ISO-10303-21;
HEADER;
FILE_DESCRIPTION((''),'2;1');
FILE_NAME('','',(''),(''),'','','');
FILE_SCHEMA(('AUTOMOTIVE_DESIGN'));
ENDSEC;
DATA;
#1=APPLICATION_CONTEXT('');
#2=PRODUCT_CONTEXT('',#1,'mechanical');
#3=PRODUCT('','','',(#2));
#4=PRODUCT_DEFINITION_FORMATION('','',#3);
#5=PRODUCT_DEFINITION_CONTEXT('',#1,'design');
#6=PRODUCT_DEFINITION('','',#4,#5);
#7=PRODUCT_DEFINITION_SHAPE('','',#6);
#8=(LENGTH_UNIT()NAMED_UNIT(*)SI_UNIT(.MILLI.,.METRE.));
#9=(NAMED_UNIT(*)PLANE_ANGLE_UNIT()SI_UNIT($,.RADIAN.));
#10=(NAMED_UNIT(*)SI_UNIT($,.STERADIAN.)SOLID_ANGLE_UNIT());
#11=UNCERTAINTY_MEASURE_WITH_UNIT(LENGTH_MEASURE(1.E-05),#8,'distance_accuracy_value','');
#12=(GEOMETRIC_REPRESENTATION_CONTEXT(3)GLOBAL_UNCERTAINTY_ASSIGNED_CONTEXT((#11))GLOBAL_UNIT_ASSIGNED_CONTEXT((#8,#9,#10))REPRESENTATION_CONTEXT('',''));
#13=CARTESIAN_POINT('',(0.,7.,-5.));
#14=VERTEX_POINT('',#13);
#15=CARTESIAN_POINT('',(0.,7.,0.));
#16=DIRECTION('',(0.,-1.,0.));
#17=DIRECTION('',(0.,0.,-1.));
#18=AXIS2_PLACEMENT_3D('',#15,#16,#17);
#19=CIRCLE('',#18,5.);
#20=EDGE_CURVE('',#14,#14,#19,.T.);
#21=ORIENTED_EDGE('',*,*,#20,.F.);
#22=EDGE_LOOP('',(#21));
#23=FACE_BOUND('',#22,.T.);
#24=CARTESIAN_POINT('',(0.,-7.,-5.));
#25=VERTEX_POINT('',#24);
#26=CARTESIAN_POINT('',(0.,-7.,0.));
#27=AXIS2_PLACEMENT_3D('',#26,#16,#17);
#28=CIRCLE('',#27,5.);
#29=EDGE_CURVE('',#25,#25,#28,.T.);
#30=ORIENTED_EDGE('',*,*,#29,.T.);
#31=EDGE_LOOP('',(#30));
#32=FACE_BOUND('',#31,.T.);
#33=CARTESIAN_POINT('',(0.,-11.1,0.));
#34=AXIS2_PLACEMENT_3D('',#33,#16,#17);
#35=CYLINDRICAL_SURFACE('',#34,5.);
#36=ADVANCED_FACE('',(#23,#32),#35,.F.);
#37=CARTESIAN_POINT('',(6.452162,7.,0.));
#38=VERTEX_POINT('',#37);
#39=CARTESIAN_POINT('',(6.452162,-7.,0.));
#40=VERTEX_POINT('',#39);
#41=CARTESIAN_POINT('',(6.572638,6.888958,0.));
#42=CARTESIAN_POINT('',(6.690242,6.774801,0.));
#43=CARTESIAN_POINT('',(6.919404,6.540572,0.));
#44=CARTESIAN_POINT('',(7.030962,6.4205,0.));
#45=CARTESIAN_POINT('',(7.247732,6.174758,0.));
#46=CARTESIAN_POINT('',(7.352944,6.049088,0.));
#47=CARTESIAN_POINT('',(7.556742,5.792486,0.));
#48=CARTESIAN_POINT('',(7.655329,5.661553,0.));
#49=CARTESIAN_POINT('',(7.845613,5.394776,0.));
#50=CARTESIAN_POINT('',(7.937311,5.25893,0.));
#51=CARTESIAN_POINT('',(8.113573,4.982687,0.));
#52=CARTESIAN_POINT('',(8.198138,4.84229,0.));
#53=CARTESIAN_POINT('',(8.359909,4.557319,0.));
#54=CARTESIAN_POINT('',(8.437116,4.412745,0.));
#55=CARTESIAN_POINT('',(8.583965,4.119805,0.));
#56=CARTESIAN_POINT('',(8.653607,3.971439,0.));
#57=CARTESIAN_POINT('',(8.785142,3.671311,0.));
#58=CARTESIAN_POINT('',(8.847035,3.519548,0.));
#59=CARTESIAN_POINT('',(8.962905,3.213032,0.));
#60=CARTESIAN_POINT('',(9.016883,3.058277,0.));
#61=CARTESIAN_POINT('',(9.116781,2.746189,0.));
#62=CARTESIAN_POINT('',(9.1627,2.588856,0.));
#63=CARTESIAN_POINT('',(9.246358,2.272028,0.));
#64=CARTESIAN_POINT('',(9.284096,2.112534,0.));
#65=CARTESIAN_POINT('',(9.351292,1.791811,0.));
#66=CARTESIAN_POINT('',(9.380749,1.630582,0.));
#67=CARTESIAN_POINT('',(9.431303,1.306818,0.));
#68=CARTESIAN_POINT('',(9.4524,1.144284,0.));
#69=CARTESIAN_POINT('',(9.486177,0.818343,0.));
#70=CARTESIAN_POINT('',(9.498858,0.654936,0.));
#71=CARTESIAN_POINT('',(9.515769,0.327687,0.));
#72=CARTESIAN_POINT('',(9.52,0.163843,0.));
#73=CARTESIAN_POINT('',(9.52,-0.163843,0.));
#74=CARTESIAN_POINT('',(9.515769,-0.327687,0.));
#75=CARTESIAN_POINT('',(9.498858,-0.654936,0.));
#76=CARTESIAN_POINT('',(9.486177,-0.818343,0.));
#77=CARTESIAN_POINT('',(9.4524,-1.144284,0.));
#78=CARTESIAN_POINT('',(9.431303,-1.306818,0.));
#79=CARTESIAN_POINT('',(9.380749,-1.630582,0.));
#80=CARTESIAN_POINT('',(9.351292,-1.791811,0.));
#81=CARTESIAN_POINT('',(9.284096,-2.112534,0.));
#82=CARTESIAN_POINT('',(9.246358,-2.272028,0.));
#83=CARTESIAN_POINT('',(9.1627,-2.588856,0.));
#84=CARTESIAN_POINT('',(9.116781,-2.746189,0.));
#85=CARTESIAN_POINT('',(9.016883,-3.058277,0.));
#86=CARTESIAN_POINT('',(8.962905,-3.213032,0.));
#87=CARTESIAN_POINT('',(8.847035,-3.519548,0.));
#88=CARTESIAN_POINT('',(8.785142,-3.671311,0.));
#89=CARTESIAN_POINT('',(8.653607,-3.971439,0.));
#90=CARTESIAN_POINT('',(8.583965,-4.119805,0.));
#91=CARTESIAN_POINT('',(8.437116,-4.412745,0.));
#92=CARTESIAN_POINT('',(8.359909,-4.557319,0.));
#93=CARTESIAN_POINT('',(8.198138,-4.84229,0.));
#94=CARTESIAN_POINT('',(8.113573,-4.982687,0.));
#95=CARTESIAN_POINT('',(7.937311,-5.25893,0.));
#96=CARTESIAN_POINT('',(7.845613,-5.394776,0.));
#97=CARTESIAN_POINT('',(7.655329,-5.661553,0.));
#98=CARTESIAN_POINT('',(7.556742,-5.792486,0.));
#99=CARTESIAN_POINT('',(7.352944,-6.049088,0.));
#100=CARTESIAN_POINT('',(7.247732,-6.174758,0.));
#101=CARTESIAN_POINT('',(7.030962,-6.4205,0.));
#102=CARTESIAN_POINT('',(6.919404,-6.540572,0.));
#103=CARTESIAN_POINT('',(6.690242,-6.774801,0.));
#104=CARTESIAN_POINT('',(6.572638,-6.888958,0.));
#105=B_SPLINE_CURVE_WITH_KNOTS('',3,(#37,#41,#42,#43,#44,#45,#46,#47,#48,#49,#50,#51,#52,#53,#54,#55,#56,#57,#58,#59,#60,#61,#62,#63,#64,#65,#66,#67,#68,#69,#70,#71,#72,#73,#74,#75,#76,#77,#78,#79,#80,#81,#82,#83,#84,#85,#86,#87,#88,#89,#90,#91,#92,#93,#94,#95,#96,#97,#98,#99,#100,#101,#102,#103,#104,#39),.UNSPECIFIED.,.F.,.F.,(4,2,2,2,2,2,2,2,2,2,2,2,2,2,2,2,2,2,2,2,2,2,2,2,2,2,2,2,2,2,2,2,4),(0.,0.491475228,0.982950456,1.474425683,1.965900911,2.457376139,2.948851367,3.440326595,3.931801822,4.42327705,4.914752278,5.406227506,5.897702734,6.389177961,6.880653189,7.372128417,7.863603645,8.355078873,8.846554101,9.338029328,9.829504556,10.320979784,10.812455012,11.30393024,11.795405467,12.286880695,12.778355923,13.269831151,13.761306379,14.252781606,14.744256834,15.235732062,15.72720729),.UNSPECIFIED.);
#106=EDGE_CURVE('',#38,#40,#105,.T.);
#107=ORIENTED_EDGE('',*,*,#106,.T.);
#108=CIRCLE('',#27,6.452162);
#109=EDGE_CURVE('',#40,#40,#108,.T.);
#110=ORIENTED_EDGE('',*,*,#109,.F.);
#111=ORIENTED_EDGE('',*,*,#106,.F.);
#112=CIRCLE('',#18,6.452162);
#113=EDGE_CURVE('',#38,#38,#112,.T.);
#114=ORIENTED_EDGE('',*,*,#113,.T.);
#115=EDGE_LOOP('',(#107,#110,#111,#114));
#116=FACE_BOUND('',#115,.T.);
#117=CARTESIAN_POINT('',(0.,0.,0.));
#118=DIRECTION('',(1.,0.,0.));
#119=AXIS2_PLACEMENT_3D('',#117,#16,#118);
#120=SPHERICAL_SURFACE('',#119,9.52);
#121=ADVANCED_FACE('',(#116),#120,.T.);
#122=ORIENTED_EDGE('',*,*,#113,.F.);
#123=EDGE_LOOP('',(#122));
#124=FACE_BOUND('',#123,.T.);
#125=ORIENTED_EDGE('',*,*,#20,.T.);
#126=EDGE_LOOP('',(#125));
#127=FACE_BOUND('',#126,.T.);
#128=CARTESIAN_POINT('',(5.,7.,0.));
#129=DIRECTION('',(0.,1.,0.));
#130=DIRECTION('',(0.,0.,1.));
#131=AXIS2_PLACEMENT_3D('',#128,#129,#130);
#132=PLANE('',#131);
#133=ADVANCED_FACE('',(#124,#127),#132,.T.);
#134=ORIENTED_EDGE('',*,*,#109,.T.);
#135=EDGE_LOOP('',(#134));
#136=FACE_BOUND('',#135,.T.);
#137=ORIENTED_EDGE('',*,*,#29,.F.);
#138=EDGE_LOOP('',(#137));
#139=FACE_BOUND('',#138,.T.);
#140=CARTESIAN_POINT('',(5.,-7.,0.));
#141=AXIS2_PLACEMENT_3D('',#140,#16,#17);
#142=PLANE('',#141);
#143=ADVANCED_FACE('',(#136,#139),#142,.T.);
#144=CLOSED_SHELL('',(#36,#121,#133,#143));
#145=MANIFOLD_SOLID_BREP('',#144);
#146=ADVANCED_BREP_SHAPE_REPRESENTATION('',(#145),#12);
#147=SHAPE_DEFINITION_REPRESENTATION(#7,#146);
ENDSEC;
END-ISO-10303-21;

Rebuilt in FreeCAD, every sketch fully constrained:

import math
import FreeCAD as App
import Part
import Sketcher

doc = App.newDocument("Part")
params = doc.addObject("Spreadsheet::Sheet", "Params")
for row, (alias, value) in enumerate([
    ("sketch1_height", "14 mm"),
    ("sketch1_radius", "9.52 mm"),
    ("revolution_angle", "360 deg"),
], start=1):
    params.set(f"A{row}", alias)
    params.set(f"B{row}", "=" + value)
    params.setAlias(f"B{row}", alias)

body = doc.addObject("PartDesign::Body", "Body")

# Sketch on XY plane
sketch1 = doc.addObject("Sketcher::SketchObject", "Sketch")
body.addObject(sketch1)
sketch1.AttachmentSupport = (doc.XY_Plane, [""])
sketch1.MapMode = "FlatFace"
sketch1.addGeometry([
    Part.LineSegment(App.Vector(5, 7, 0), App.Vector(5, -7, 0)),
    Part.LineSegment(App.Vector(5, -7, 0), App.Vector(6.5, -7, 0)),
    Part.ArcOfCircle(Part.Circle(App.Vector(0, 0, 0), App.Vector(0, 0, 1), 9.5), math.radians(-47), math.radians(47)),
    Part.LineSegment(App.Vector(6.5, 7, 0), App.Vector(5, 7, 0)),
], False)
sketch1.addConstraint([
    Sketcher.Constraint("Coincident", 0, 2, 1, 1),
    Sketcher.Constraint("Coincident", 1, 2, 2, 1),
    Sketcher.Constraint("Coincident", 2, 2, 3, 1),
    Sketcher.Constraint("Coincident", 3, 2, 0, 1),
    Sketcher.Constraint("Vertical", 0),
    Sketcher.Constraint("Horizontal", 1),
    Sketcher.Constraint("Horizontal", 3),
    Sketcher.Constraint("Coincident", 2, 3, -1, 1),
    Sketcher.Constraint("Vertical", 1, 2, 2, 2),
    Sketcher.Constraint("DistanceY", 0, 2, 0, 1, 14.0),
    Sketcher.Constraint("Radius", 2, 9.52),
    Sketcher.Constraint("DistanceX", -1, 1, 0, 2, 5.0),
])
sketch1.setExpression("Constraints[9]", "Params.sketch1_height")
sketch1.setExpression("Constraints[10]", "Params.sketch1_radius")
revolution = doc.addObject("PartDesign::Revolution", "Revolution")
body.addObject(revolution)
revolution.Profile = sketch1
revolution.ReferenceAxis = (sketch1, ["V_Axis"])
revolution.setExpression("Angle", "Params.revolution_angle")

doc.recompute()
